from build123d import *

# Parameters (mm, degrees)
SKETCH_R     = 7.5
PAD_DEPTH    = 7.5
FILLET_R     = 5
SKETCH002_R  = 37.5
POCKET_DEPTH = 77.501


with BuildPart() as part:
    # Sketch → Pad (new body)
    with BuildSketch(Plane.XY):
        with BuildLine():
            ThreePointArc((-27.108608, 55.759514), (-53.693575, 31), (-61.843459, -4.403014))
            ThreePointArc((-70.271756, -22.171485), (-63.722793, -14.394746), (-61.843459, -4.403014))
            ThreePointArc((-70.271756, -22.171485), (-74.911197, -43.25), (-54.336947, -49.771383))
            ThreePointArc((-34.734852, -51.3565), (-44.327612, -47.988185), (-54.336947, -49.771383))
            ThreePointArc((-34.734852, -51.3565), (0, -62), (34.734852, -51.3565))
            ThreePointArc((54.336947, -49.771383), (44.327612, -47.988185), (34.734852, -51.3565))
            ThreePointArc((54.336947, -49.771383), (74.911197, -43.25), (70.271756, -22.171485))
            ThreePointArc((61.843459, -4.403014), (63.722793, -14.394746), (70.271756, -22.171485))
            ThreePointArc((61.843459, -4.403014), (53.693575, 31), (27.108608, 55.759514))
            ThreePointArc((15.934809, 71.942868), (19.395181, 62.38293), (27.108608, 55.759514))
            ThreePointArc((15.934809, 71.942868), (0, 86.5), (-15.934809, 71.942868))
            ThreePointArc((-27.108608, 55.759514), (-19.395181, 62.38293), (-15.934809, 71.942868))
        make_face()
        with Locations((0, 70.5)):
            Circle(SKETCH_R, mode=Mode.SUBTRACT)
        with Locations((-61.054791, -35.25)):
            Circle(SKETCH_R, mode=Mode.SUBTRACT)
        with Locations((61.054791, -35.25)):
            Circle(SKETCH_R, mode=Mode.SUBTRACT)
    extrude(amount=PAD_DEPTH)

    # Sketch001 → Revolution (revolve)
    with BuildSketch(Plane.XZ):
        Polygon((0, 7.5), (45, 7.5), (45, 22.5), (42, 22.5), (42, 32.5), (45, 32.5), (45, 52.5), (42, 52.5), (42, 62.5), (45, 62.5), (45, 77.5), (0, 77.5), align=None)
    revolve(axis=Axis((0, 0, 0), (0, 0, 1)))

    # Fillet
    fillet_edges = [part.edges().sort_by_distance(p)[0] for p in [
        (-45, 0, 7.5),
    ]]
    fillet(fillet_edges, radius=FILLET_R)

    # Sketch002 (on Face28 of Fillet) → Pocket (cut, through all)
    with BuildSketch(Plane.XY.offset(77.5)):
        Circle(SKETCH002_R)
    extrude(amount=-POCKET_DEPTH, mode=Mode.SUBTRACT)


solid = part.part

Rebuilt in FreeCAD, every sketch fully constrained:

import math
import FreeCAD as App
import Part
import Sketcher


def edges_at(feature, points):
    """Names of the edges that pass closest to the given points."""
    edges = feature.Shape.Edges
    near = lambda p: min(range(len(edges)), key=lambda i: edges[i].distToShape(Part.Vertex(*p))[0])
    return sorted({f"Edge{near(p) + 1}" for p in points})

doc = App.newDocument("Part")
body = doc.addObject("PartDesign::Body", "Body")

sketch1 = doc.addObject("Sketcher::SketchObject", "Sketch")
body.addObject(sketch1)
sketch1.AttachmentSupport = (doc.XY_Plane, [""])
sketch1.MapMode = "FlatFace"
sketch1.addGeometry([
    Part.ArcOfCircle(Part.Circle(App.Vector(0, 0, 0), App.Vector(0, 0, 1), 62), math.radians(116), math.radians(184)),
    Part.ArcOfCircle(Part.Circle(App.Vector(-82, -6, 0), App.Vector(0, 0, 1), 20), math.radians(-55), math.radians(4)),
    Part.ArcOfCircle(Part.Circle(App.Vector(-61, -35, 0), App.Vector(0, 0, 1), 16), math.radians(125), math.radians(295)),
    Part.ArcOfCircle(Part.Circle(App.Vector(-46, -68, 0), App.Vector(0, 0, 1), 20), math.radians(56), math.radians(115)),
    Part.ArcOfCircle(Part.Circle(App.Vector(0, 0, 0), App.Vector(0, 0, 1), 62), math.radians(-124), math.radians(-56)),
    Part.ArcOfCircle(Part.Circle(App.Vector(46, -68, 0), App.Vector(0, 0, 1), 20), math.radians(65), math.radians(124)),
    Part.ArcOfCircle(Part.Circle(App.Vector(61, -35, 0), App.Vector(0, 0, 1), 16), math.radians(-115), math.radians(55)),
    Part.ArcOfCircle(Part.Circle(App.Vector(82, -6, 0), App.Vector(0, 0, 1), 20), math.radians(176), math.radians(235)),
    Part.ArcOfCircle(Part.Circle(App.Vector(0, 0, 0), App.Vector(0, 0, 1), 62), math.radians(-4), math.radians(64)),
    Part.ArcOfCircle(Part.Circle(App.Vector(36, 74, 0), App.Vector(0, 0, 1), 20), math.radians(-175), math.radians(-116)),
    Part.ArcOfCircle(Part.Circle(App.Vector(0, 70, 0), App.Vector(0, 0, 1), 16), math.radians(5), math.radians(175)),
    Part.ArcOfCircle(Part.Circle(App.Vector(-36, 74, 0), App.Vector(0, 0, 1), 20), math.radians(-64), math.radians(-5)),
    Part.Circle(App.Vector(-61, -35, 0), App.Vector(0, 0, 1), 8),
    Part.Circle(App.Vector(61, -35, 0), App.Vector(0, 0, 1), 8),
    Part.Circle(App.Vector(0, 70, 0), App.Vector(0, 0, 1), 8),
], False)
sketch1.addConstraint([
    Sketcher.Constraint("Tangent", 0, 2, 1, 2),
    Sketcher.Constraint("Tangent", 1, 1, 2, 1),
    Sketcher.Constraint("Tangent", 2, 2, 3, 2),
    Sketcher.Constraint("Tangent", 3, 1, 4, 1),
    Sketcher.Constraint("Tangent", 4, 2, 5, 2),
    Sketcher.Constraint("Tangent", 5, 1, 6, 1),
    Sketcher.Constraint("Tangent", 6, 2, 7, 2),
    Sketcher.Constraint("Tangent", 7, 1, 8, 1),
    Sketcher.Constraint("Tangent", 8, 2, 9, 2),
    Sketcher.Constraint("Tangent", 9, 1, 10, 1),
    Sketcher.Constraint("Tangent", 10, 2, 11, 2),
    Sketcher.Constraint("Tangent", 11, 1, 0, 1),
    Sketcher.Constraint("Coincident", 0, 3, -1, 1),
    Sketcher.Constraint("Coincident", 4, 3, -1, 1),
    Sketcher.Constraint("Coincident", 8, 3, -1, 1),
    Sketcher.Constraint("Coincident", 12, 3, 2, 3),
    Sketcher.Constraint("Coincident", 13, 3, 6, 3),
    Sketcher.Constraint("Coincident", 14, 3, 10, 3),
    Sketcher.Constraint("Equal", 1, 3),
    Sketcher.Constraint("Equal", 0, 4),
    Sketcher.Constraint("Equal", 3, 5),
    Sketcher.Constraint("Equal", 2, 6),
    Sketcher.Constraint("Equal", 5, 7),
    Sketcher.Constraint("Equal", 4, 8),
    Sketcher.Constraint("Equal", 6, 10),
    Sketcher.Constraint("Equal", 9, 11),
    Sketcher.Constraint("Equal", 12, 13),
    Sketcher.Constraint("Equal", 13, 14),
    Sketcher.Constraint("Symmetric", 2, 3, 6, 3, -2),
    Sketcher.Constraint("PointOnObject", 10, 3, -2),
    Sketcher.Constraint("Diameter", 12, 15.0),
    Sketcher.Constraint("Radius", 0, 62.0),
    Sketcher.Constraint("Radius", 1, 20.000001),
    Sketcher.Constraint("Radius", 2, 16.0),
    Sketcher.Constraint("DistanceY", -1, 1, 10, 3, 70.5),
    Sketcher.Constraint("DistanceY", 2, 3, -1, 1, 35.25),
    Sketcher.Constraint("Radius", 9, 19.999997),
    Sketcher.Constraint("DistanceY", 3, 1, -1, 1, 51.3565),
])
pad1 = doc.addObject("PartDesign::Pad", "Pad")
body.addObject(pad1)
pad1.Profile = sketch1
pad1.Length = 7.5

sketch2 = doc.addObject("Sketcher::SketchObject", "Sketch001")
body.addObject(sketch2)
sketch2.AttachmentSupport = (doc.XZ_Plane, [""])
sketch2.MapMode = "FlatFace"
sketch2.addGeometry([
    Part.LineSegment(App.Vector(0, 7.5, 0), App.Vector(45, 7.5, 0)),
    Part.LineSegment(App.Vector(45, 7.5, 0), App.Vector(45, 22.5, 0)),
    Part.LineSegment(App.Vector(45, 22.5, 0), App.Vector(42, 22.5, 0)),
    Part.LineSegment(App.Vector(42, 22.5, 0), App.Vector(42, 32.5, 0)),
    Part.LineSegment(App.Vector(42, 32.5, 0), App.Vector(45, 32.5, 0)),
    Part.LineSegment(App.Vector(45, 32.5, 0), App.Vector(45, 52.5, 0)),
    Part.LineSegment(App.Vector(45, 52.5, 0), App.Vector(42, 52.5, 0)),
    Part.LineSegment(App.Vector(42, 52.5, 0), App.Vector(42, 62.5, 0)),
    Part.LineSegment(App.Vector(42, 62.5, 0), App.Vector(45, 62.5, 0)),
    Part.LineSegment(App.Vector(45, 62.5, 0), App.Vector(45, 77.5, 0)),
    Part.LineSegment(App.Vector(45, 77.5, 0), App.Vector(0, 77.5, 0)),
    Part.LineSegment(App.Vector(0, 77.5, 0), App.Vector(0, 7.5, 0)),
], False)
sketch2.addConstraint([
    Sketcher.Constraint("Coincident", 0, 2, 1, 1),
    Sketcher.Constraint("Coincident", 1, 2, 2, 1),
    Sketcher.Constraint("Coincident", 2, 2, 3, 1),
    Sketcher.Constraint("Coincident", 3, 2, 4, 1),
    Sketcher.Constraint("Coincident", 4, 2, 5, 1),
    Sketcher.Constraint("Coincident", 5, 2, 6, 1),
    Sketcher.Constraint("Coincident", 6, 2, 7, 1),
    Sketcher.Constraint("Coincident", 7, 2, 8, 1),
    Sketcher.Constraint("Coincident", 8, 2, 9, 1),
    Sketcher.Constraint("Coincident", 9, 2, 10, 1),
    Sketcher.Constraint("Coincident", 10, 2, 11, 1),
    Sketcher.Constraint("Coincident", 11, 2, 0, 1),
    Sketcher.Constraint("Horizontal", 0),
    Sketcher.Constraint("Vertical", 1),
    Sketcher.Constraint("Horizontal", 2),
    Sketcher.Constraint("Vertical", 3),
    Sketcher.Constraint("Horizontal", 4),
    Sketcher.Constraint("Vertical", 5),
    Sketcher.Constraint("Horizontal", 6),
    Sketcher.Constraint("Vertical", 7),
    Sketcher.Constraint("Horizontal", 8),
    Sketcher.Constraint("Vertical", 9),
    Sketcher.Constraint("Horizontal", 10),
    Sketcher.Constraint("Vertical", 11),
    Sketcher.Constraint("PointOnObject", 10, 2, -2),
    Sketcher.Constraint("Vertical", 1, 2, 4, 2),
    Sketcher.Constraint("Vertical", 3, 2, 6, 2),
    Sketcher.Constraint("Vertical", 5, 2, 8, 2),
    Sketcher.Constraint("Equal", 3, 7),
    Sketcher.Constraint("Equal", 1, 9),
    Sketcher.Constraint("DistanceX", 0, 1, 0, 2, 45.0),
    Sketcher.Constraint("DistanceX", 2, 2, 2, 1, 3.0),
    Sketcher.Constraint("DistanceY", 1, 1, 1, 2, 15.0),
    Sketcher.Constraint("DistanceY", 3, 1, 3, 2, 10.0),
    Sketcher.Constraint("DistanceY", 5, 1, 5, 2, 20.0),
    Sketcher.Constraint("DistanceY", -1, 1, 0, 2, 7.5),
])
revolution = doc.addObject("PartDesign::Revolution", "Revolution")
body.addObject(revolution)
revolution.Profile = sketch2
revolution.ReferenceAxis = (sketch2, ["V_Axis"])
revolution.Angle = 360
doc.recompute()

fillet = doc.addObject("PartDesign::Fillet", "Fillet")
body.addObject(fillet)
fillet.Base = (revolution, edges_at(revolution, [(-45, 0, 7.5)]))
fillet.Radius = 5

sketch3 = doc.addObject("Sketcher::SketchObject", "Sketch002")
body.addObject(sketch3)
sketch3.AttachmentSupport = (doc.XY_Plane, [""])
sketch3.MapMode = "FlatFace"
sketch3.AttachmentOffset = App.Placement(App.Vector(0, 0, 77.5), App.Rotation())
sketch3.addGeometry(Part.Circle(App.Vector(0, 0, 0), App.Vector(0, 0, 1), 38), False)
sketch3.addConstraint([
    Sketcher.Constraint("Coincident", 0, 3, -1, 1),
    Sketcher.Constraint("Diameter", 0, 75.0),
])
pocket1 = doc.addObject("PartDesign::Pocket", "Pocket")
body.addObject(pocket1)
pocket1.Profile = sketch3
pocket1.Type = "ThroughAll"

doc.recompute()
